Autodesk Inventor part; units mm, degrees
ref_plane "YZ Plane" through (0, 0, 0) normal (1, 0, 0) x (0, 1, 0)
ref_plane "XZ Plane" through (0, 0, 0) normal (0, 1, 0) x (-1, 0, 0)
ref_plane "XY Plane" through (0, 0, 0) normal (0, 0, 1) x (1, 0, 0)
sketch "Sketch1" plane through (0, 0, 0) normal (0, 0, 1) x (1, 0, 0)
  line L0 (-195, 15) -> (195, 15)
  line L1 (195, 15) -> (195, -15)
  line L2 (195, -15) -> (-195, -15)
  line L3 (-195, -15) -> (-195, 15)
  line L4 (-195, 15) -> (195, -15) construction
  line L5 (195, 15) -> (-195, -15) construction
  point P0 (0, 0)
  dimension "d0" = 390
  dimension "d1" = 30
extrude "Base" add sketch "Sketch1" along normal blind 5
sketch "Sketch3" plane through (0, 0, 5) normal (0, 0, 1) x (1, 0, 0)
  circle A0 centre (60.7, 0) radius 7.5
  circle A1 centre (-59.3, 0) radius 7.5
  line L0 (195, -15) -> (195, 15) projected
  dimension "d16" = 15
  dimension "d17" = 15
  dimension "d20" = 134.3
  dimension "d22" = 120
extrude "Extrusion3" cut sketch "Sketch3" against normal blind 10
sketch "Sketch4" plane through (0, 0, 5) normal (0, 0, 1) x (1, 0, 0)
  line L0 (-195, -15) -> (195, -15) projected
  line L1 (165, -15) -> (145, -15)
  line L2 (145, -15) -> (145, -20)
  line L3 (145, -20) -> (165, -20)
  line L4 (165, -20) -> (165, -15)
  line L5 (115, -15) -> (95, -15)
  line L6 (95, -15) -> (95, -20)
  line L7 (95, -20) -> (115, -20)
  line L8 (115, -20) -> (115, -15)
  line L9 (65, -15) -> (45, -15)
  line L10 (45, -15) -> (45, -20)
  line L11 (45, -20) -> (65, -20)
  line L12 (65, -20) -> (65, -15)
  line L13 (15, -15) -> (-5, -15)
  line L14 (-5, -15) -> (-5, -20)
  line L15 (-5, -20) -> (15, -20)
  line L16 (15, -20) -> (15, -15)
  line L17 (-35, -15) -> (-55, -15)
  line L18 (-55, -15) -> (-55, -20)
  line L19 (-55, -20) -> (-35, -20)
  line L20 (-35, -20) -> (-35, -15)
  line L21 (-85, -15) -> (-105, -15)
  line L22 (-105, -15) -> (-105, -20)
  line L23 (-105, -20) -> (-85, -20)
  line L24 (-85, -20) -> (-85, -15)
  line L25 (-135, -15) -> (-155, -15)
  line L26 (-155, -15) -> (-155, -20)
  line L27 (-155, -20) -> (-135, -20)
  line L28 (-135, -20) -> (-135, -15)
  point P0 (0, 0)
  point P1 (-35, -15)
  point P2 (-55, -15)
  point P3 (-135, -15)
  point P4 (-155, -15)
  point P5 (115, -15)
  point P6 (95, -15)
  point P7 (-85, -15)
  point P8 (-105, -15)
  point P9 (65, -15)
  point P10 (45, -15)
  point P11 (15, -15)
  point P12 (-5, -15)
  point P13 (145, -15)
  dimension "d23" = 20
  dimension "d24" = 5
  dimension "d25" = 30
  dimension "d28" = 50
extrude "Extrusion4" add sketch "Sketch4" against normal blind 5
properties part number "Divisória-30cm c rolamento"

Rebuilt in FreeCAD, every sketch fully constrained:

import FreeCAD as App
import Part
import Sketcher


def add_polygon(sketch, points):
    """Adds a closed chain of lines whose ends are joined by coincident constraints."""
    first, n = sketch.GeometryCount, len(points)
    for a, b in zip(points, points[1:] + points[:1]):
        sketch.addGeometry(Part.LineSegment(App.Vector(*a, 0), App.Vector(*b, 0)), False)
    for i in range(n):
        sketch.addConstraint(Sketcher.Constraint("Coincident", first + i, 2, first + (i + 1) % n, 1))

doc = App.newDocument("Part")
body = doc.addObject("PartDesign::Body", "Body")

sketch1 = body.newObject("Sketcher::SketchObject", "Sketch")
sketch1.AttachmentSupport = (doc.getObject("XY_Plane"), [""])
sketch1.MapMode = "FlatFace"
add_polygon(sketch1, [(195, 15), (-195, 15), (-195, -15), (195, -15)])
sketch1.addConstraint(Sketcher.Constraint("Horizontal", 0))
sketch1.addConstraint(Sketcher.Constraint("Vertical", 1))
sketch1.addConstraint(Sketcher.Constraint("Horizontal", 2))
sketch1.addConstraint(Sketcher.Constraint("Vertical", 3))
sketch1.addConstraint(Sketcher.Constraint("Symmetric", 0, 2, 2, 2, -1, 1))
sketch1.addConstraint(Sketcher.Constraint("DistanceX", 0, 2, 0, 1, 390.0))
sketch1.addConstraint(Sketcher.Constraint("DistanceY", 1, 2, 1, 1, 30.0))
pad1 = body.newObject("PartDesign::Pad", "Pad")
pad1.Profile = sketch1
pad1.Length = 5

sketch2 = body.newObject("Sketcher::SketchObject", "Sketch001")
sketch2.AttachmentSupport = (doc.getObject("XY_Plane"), [""])
sketch2.MapMode = "FlatFace"
sketch2.AttachmentOffset = App.Placement(App.Vector(0, 0, 5), App.Rotation())
sketch2.addGeometry(Part.Circle(App.Vector(60.7, 0, 0), App.Vector(0, 0, 1), 7.5), False)
sketch2.addGeometry(Part.Circle(App.Vector(-59.3, 0, 0), App.Vector(0, 0, 1), 7.5), False)
sketch2.addConstraint(Sketcher.Constraint("Equal", 0, 1))
sketch2.addConstraint(Sketcher.Constraint("PointOnObject", 0, 3, -1))
sketch2.addConstraint(Sketcher.Constraint("PointOnObject", 1, 3, -1))
sketch2.addConstraint(Sketcher.Constraint("Diameter", 0, 15.0))
sketch2.addConstraint(Sketcher.Constraint("DistanceX", 1, 3, 0, 3, 120.0))
sketch2.addConstraint(Sketcher.Constraint("DistanceX", -1, 1, 0, 3, 60.7))
pocket1 = body.newObject("PartDesign::Pocket", "Pocket")
pocket1.Profile = sketch2
pocket1.Length = 10

sketch3 = body.newObject("Sketcher::SketchObject", "Sketch002")
sketch3.AttachmentSupport = (doc.getObject("XY_Plane"), [""])
sketch3.MapMode = "FlatFace"
sketch3.AttachmentOffset = App.Placement(App.Vector(0, 0, 5), App.Rotation())
add_polygon(sketch3, [(165, -15), (145, -15), (145, -20), (165, -20)])
add_polygon(sketch3, [(115, -15), (95, -15), (95, -20), (115, -20)])
add_polygon(sketch3, [(65, -15), (45, -15), (45, -20), (65, -20)])
add_polygon(sketch3, [(15, -15), (-5, -15), (-5, -20), (15, -20)])
add_polygon(sketch3, [(-35, -15), (-55, -15), (-55, -20), (-35, -20)])
add_polygon(sketch3, [(-85, -15), (-105, -15), (-105, -20), (-85, -20)])
add_polygon(sketch3, [(-135, -15), (-155, -15), (-155, -20), (-135, -20)])
sketch3.addConstraint(Sketcher.Constraint("Horizontal", 0))
sketch3.addConstraint(Sketcher.Constraint("Vertical", 1))
sketch3.addConstraint(Sketcher.Constraint("Horizontal", 2))
sketch3.addConstraint(Sketcher.Constraint("Vertical", 3))
sketch3.addConstraint(Sketcher.Constraint("Horizontal", 4))
sketch3.addConstraint(Sketcher.Constraint("Vertical", 5))
sketch3.addConstraint(Sketcher.Constraint("Horizontal", 6))
sketch3.addConstraint(Sketcher.Constraint("Vertical", 7))
sketch3.addConstraint(Sketcher.Constraint("Horizontal", 8))
sketch3.addConstraint(Sketcher.Constraint("Vertical", 9))
sketch3.addConstraint(Sketcher.Constraint("Horizontal", 10))
sketch3.addConstraint(Sketcher.Constraint("Vertical", 11))
sketch3.addConstraint(Sketcher.Constraint("Horizontal", 12))
sketch3.addConstraint(Sketcher.Constraint("Vertical", 13))
sketch3.addConstraint(Sketcher.Constraint("Horizontal", 14))
sketch3.addConstraint(Sketcher.Constraint("Vertical", 15))
sketch3.addConstraint(Sketcher.Constraint("Horizontal", 16))
sketch3.addConstraint(Sketcher.Constraint("Vertical", 17))
sketch3.addConstraint(Sketcher.Constraint("Horizontal", 18))
sketch3.addConstraint(Sketcher.Constraint("Vertical", 19))
sketch3.addConstraint(Sketcher.Constraint("Horizontal", 20))
sketch3.addConstraint(Sketcher.Constraint("Vertical", 21))
sketch3.addConstraint(Sketcher.Constraint("Horizontal", 22))
sketch3.addConstraint(Sketcher.Constraint("Vertical", 23))
sketch3.addConstraint(Sketcher.Constraint("Horizontal", 24))
sketch3.addConstraint(Sketcher.Constraint("Vertical", 25))
sketch3.addConstraint(Sketcher.Constraint("Horizontal", 26))
sketch3.addConstraint(Sketcher.Constraint("Vertical", 27))
sketch3.addConstraint(Sketcher.Constraint("Horizontal", 3, 2, 4, 2))
sketch3.addConstraint(Sketcher.Constraint("Horizontal", 2, 2, 5, 2))
sketch3.addConstraint(Sketcher.Constraint("Horizontal", 7, 2, 8, 2))
sketch3.addConstraint(Sketcher.Constraint("Horizontal", 6, 2, 9, 2))
sketch3.addConstraint(Sketcher.Constraint("Horizontal", 11, 2, 12, 2))
sketch3.addConstraint(Sketcher.Constraint("Horizontal", 10, 2, 13, 2))
sketch3.addConstraint(Sketcher.Constraint("Horizontal", 15, 2, 16, 2))
sketch3.addConstraint(Sketcher.Constraint("Horizontal", 14, 2, 17, 2))
sketch3.addConstraint(Sketcher.Constraint("Horizontal", 19, 2, 20, 2))
sketch3.addConstraint(Sketcher.Constraint("Horizontal", 18, 2, 21, 2))
sketch3.addConstraint(Sketcher.Constraint("Horizontal", 23, 2, 24, 2))
sketch3.addConstraint(Sketcher.Constraint("Horizontal", 22, 2, 25, 2))
sketch3.addConstraint(Sketcher.Constraint("Equal", 2, 4))
sketch3.addConstraint(Sketcher.Constraint("Equal", 6, 8))
sketch3.addConstraint(Sketcher.Constraint("Equal", 10, 12))
sketch3.addConstraint(Sketcher.Constraint("Equal", 14, 16))
sketch3.addConstraint(Sketcher.Constraint("Equal", 18, 20))
sketch3.addConstraint(Sketcher.Constraint("Equal", 22, 24))
sketch3.addConstraint(Sketcher.Constraint("DistanceX", 0, 2, 0, 1, 20.0))
sketch3.addConstraint(Sketcher.Constraint("DistanceY", 1, 2, 1, 1, 5.0))
sketch3.addConstraint(Sketcher.Constraint("DistanceY", 1, 2, -1, 1, 20.0))
sketch3.addConstraint(Sketcher.Constraint("DistanceX", 12, 2, -1, 1, 5.0))
sketch3.addConstraint(Sketcher.Constraint("DistanceX", 4, 2, 0, 2, 50.0))
sketch3.addConstraint(Sketcher.Constraint("DistanceX", 8, 2, 4, 2, 50.0))
sketch3.addConstraint(Sketcher.Constraint("DistanceX", 12, 2, 8, 2, 50.0))
sketch3.addConstraint(Sketcher.Constraint("DistanceX", 16, 2, 12, 2, 50.0))
sketch3.addConstraint(Sketcher.Constraint("DistanceX", 20, 2, 16, 2, 50.0))
sketch3.addConstraint(Sketcher.Constraint("DistanceX", 24, 2, 20, 2, 50.0))
pad2 = body.newObject("PartDesign::Pad", "Pad001")
pad2.Profile = sketch3
pad2.Length = 5
pad2.Reversed = True

doc.recompute()
